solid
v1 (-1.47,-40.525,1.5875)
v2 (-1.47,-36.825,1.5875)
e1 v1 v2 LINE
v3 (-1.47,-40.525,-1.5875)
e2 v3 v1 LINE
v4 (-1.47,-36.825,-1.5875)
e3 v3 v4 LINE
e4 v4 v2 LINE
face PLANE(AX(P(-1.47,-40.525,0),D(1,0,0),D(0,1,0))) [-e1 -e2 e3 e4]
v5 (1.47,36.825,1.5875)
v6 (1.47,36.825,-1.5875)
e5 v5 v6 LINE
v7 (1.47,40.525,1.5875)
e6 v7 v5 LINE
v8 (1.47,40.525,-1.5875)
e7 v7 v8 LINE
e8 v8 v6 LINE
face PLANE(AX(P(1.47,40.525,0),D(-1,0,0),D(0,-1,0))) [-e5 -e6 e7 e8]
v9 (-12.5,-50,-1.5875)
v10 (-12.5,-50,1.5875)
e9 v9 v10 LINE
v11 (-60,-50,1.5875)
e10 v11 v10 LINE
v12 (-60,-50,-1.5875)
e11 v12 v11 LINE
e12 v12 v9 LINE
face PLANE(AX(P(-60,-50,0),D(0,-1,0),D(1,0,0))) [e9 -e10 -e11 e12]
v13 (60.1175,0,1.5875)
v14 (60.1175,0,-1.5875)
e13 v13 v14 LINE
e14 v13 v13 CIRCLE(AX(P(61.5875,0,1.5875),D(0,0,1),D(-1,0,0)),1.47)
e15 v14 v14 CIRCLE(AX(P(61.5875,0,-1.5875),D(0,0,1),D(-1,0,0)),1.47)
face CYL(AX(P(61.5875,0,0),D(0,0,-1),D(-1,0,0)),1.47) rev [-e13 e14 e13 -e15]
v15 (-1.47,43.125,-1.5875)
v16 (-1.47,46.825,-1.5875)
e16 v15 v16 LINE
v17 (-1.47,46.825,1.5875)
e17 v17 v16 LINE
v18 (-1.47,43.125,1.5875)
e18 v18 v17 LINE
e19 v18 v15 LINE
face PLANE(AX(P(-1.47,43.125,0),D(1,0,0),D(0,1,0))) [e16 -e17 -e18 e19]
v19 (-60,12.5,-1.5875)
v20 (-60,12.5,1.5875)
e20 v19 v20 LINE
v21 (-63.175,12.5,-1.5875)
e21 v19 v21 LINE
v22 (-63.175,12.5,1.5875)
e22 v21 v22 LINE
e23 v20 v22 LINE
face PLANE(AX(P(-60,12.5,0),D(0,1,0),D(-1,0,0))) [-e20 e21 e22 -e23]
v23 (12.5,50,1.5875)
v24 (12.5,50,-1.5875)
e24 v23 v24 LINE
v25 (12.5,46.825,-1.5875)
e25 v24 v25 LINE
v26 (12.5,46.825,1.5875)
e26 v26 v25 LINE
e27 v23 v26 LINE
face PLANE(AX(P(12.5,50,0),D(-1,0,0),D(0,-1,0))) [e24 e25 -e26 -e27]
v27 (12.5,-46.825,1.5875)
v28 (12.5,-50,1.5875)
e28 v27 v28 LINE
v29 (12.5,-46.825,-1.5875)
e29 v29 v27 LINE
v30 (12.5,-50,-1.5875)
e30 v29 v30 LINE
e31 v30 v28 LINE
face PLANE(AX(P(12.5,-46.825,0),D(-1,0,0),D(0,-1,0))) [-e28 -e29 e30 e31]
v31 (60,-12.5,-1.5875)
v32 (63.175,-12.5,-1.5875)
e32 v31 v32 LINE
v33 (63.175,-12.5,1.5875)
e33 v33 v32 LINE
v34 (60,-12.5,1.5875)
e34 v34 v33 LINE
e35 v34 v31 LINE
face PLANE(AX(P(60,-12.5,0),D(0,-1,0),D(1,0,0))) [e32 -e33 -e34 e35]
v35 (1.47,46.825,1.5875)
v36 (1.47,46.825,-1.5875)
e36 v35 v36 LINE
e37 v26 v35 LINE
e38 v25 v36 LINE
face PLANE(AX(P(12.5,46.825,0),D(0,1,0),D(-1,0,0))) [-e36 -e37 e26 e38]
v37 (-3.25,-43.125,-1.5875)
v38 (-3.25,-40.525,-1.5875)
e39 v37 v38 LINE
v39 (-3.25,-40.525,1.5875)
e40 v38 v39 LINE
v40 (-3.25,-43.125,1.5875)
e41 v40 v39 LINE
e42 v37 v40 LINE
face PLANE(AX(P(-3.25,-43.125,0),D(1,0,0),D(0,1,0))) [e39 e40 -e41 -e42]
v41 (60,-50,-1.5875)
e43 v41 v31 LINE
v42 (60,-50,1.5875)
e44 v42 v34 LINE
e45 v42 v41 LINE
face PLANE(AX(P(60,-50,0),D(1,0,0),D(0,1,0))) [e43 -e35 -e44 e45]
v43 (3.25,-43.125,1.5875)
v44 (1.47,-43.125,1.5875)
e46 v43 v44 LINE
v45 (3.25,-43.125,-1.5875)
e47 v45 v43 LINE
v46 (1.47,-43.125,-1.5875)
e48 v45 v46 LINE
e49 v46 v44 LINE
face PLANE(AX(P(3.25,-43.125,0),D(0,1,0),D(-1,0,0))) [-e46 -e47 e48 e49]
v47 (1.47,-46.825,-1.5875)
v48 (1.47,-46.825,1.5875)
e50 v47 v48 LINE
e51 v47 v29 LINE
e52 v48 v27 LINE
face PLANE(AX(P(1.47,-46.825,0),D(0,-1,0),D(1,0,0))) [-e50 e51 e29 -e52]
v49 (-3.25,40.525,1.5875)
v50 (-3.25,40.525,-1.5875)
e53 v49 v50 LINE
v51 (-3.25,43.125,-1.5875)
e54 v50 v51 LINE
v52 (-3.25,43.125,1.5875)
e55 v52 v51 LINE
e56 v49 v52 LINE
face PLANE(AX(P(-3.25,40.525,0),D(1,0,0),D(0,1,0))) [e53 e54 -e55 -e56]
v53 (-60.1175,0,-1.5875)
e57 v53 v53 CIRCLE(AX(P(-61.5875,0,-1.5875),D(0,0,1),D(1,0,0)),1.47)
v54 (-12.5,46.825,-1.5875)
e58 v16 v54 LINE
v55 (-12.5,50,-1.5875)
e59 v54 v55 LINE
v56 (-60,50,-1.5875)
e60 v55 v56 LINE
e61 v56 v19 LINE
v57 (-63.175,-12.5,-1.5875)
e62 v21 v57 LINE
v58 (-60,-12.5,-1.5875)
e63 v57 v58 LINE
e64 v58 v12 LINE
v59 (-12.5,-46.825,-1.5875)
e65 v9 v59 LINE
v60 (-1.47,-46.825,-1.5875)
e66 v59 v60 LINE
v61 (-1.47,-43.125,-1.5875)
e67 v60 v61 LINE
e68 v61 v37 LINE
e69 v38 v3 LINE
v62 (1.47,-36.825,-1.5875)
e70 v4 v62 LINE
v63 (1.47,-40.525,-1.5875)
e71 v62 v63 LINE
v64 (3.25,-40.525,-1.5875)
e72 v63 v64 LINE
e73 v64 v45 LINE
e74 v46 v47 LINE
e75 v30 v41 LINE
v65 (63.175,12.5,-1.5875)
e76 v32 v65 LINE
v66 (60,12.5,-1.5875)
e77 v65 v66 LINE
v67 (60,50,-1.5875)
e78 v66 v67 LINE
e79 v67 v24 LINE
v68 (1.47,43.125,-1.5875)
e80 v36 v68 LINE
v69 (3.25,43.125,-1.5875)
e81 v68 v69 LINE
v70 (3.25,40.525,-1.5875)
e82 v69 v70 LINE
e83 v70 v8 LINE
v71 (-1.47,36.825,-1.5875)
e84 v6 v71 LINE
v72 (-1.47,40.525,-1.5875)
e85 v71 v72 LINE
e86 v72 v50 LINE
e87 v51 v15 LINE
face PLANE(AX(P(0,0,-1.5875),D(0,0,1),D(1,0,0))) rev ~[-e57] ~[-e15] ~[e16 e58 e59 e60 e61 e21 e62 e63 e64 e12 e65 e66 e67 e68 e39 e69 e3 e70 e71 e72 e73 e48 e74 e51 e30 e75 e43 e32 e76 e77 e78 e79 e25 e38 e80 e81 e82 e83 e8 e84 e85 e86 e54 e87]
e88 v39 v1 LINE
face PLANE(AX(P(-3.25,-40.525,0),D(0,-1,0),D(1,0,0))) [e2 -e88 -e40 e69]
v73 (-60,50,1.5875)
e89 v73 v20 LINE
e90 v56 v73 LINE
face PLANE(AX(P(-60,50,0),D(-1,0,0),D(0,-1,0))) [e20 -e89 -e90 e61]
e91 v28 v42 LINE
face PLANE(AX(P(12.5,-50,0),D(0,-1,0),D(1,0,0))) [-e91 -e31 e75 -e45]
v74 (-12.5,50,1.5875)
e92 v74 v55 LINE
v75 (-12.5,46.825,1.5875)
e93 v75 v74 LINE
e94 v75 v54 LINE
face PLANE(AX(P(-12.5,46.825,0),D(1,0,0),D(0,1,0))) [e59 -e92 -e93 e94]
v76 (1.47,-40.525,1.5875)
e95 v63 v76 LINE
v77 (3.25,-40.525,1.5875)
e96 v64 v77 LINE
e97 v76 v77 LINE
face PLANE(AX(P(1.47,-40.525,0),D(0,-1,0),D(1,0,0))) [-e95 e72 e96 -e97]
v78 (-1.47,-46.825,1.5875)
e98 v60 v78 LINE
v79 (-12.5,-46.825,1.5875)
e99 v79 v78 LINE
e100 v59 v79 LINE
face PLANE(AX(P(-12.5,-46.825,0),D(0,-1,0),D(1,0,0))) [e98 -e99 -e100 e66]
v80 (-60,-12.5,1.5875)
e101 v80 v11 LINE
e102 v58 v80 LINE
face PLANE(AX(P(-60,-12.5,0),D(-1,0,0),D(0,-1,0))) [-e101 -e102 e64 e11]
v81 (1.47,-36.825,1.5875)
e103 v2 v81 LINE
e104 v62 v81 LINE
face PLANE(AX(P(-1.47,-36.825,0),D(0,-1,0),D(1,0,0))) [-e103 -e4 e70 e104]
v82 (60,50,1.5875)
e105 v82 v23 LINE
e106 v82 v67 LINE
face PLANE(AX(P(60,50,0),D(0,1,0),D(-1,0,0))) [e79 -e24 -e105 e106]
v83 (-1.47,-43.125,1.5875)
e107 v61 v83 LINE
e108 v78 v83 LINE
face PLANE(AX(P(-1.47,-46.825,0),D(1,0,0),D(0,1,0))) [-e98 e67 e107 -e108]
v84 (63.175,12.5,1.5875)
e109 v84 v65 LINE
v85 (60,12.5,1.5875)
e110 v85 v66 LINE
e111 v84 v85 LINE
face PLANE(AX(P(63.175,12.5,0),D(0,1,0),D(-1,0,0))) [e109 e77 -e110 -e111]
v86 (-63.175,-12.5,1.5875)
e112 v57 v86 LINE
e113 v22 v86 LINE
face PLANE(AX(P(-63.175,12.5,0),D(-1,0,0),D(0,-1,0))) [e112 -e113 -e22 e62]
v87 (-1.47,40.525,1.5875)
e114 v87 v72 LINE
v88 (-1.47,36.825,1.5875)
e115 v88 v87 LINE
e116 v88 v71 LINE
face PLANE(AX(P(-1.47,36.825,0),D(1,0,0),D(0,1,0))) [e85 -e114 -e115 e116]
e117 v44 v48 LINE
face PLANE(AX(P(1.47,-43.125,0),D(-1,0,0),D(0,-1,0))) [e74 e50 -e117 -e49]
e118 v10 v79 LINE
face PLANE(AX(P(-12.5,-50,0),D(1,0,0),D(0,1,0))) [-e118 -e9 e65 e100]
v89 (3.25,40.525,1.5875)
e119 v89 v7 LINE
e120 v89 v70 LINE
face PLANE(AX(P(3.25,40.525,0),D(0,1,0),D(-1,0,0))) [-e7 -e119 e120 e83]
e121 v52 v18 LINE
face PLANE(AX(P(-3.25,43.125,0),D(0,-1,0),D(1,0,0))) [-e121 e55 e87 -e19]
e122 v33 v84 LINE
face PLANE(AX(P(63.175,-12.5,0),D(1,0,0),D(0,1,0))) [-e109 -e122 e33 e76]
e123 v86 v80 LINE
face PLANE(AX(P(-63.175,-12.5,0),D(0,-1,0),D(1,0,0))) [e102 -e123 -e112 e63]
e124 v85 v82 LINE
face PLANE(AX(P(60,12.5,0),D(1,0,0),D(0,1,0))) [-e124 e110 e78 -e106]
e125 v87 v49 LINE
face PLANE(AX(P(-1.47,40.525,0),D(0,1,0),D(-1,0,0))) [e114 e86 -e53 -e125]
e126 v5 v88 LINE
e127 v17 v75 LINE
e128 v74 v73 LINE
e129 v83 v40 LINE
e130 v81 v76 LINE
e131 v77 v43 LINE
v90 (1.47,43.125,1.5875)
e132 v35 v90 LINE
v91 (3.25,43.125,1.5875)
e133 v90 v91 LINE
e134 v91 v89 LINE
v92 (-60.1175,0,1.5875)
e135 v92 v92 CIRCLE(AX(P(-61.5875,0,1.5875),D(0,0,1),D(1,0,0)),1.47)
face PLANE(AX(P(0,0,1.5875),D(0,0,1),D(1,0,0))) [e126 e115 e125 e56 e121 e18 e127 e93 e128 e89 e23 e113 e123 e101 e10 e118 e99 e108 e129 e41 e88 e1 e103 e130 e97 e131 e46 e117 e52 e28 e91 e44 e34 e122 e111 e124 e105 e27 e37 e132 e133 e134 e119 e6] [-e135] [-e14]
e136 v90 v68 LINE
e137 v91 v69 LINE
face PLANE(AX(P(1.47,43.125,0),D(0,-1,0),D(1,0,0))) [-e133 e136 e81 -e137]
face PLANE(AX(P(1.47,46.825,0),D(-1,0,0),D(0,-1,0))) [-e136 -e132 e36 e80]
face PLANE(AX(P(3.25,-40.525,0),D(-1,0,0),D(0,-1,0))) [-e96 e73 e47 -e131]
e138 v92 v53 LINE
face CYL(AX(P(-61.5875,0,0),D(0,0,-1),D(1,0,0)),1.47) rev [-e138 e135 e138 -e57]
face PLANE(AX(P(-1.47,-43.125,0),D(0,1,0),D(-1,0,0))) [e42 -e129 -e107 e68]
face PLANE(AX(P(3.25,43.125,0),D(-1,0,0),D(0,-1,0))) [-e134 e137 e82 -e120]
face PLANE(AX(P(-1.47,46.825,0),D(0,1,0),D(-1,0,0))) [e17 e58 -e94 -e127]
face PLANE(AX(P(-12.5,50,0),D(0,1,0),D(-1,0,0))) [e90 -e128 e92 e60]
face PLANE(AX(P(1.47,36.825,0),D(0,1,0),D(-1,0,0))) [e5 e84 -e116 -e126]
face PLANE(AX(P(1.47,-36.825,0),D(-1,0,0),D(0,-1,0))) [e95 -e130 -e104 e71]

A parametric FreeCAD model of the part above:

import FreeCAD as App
import Part
import Sketcher
Q = App.Units.Quantity

doc = App.newDocument("Part")
params = doc.addObject("Spreadsheet::Sheet", "Params")
for row, (alias, value) in enumerate([
    ("sketch1_diameter", "2.94 mm"),
    ("sketch1_height", "25 mm"),
    ("sketch1_width", "47.5 mm"),
    ("sketch1_height2", "37.5 mm"),
    ("sketch1_height3", "3.7 mm"),
    ("pad1_length", "3.175 mm"),
], start=1):
    params.set(f"A{row}", alias)
    params.set(f"B{row}", "=" + value)
    params.setAlias(f"B{row}", alias)

body = doc.addObject("PartDesign::Body", "Body")

sketch1 = body.newObject("Sketcher::SketchObject", "Sketch")
sketch1.AttachmentSupport = (doc.getObject("XY_Plane"), [""])
sketch1.MapMode = "FlatFace"
sketch1.addGeometry(Part.LineSegment(App.Vector(-12.5, 50, 0), App.Vector(-60, 50, 0)), False)
sketch1.addGeometry(Part.LineSegment(App.Vector(-60, 50, 0), App.Vector(-60, 12.5, 0)), False)
sketch1.addGeometry(Part.LineSegment(App.Vector(-60, 12.5, 0), App.Vector(-63.2, 12.5, 0)), False)
sketch1.addGeometry(Part.LineSegment(App.Vector(-63.2, 12.5, 0), App.Vector(-63.2, -12.5, 0)), False)
sketch1.addGeometry(Part.LineSegment(App.Vector(-63.2, -12.5, 0), App.Vector(-60, -12.5, 0)), False)
sketch1.addGeometry(Part.LineSegment(App.Vector(-60, -12.5, 0), App.Vector(-60, -50, 0)), False)
sketch1.addGeometry(Part.LineSegment(App.Vector(-60, -50, 0), App.Vector(-12.5, -50, 0)), False)
sketch1.addGeometry(Part.LineSegment(App.Vector(-12.5, -50, 0), App.Vector(-12.5, -46.8, 0)), False)
sketch1.addGeometry(Part.LineSegment(App.Vector(-12.5, -46.8, 0), App.Vector(-1.5, -46.8, 0)), False)
sketch1.addGeometry(Part.LineSegment(App.Vector(-1.5, -46.8, 0), App.Vector(-1.5, -43.1, 0)), False)
sketch1.addGeometry(Part.LineSegment(App.Vector(-1.5, -43.1, 0), App.Vector(-3.2, -43.1, 0)), False)
sketch1.addGeometry(Part.LineSegment(App.Vector(-3.2, -43.1, 0), App.Vector(-3.2, -40.5, 0)), False)
sketch1.addGeometry(Part.LineSegment(App.Vector(-3.2, -40.5, 0), App.Vector(-1.5, -40.5, 0)), False)
sketch1.addGeometry(Part.LineSegment(App.Vector(-1.5, -40.5, 0), App.Vector(-1.5, -36.8, 0)), False)
sketch1.addGeometry(Part.LineSegment(App.Vector(-1.5, -36.8, 0), App.Vector(1.5, -36.8, 0)), False)
sketch1.addGeometry(Part.LineSegment(App.Vector(1.5, -36.8, 0), App.Vector(1.5, -40.5, 0)), False)
sketch1.addGeometry(Part.LineSegment(App.Vector(1.5, -40.5, 0), App.Vector(3.2, -40.5, 0)), False)
sketch1.addGeometry(Part.LineSegment(App.Vector(3.2, -40.5, 0), App.Vector(3.2, -43.1, 0)), False)
sketch1.addGeometry(Part.LineSegment(App.Vector(3.2, -43.1, 0), App.Vector(1.5, -43.1, 0)), False)
sketch1.addGeometry(Part.LineSegment(App.Vector(1.5, -43.1, 0), App.Vector(1.5, -46.8, 0)), False)
sketch1.addGeometry(Part.LineSegment(App.Vector(1.5, -46.8, 0), App.Vector(12.5, -46.8, 0)), False)
sketch1.addGeometry(Part.LineSegment(App.Vector(12.5, -46.8, 0), App.Vector(12.5, -50, 0)), False)
sketch1.addGeometry(Part.LineSegment(App.Vector(12.5, -50, 0), App.Vector(60, -50, 0)), False)
sketch1.addGeometry(Part.LineSegment(App.Vector(60, -50, 0), App.Vector(60, -12.5, 0)), False)
sketch1.addGeometry(Part.LineSegment(App.Vector(60, -12.5, 0), App.Vector(63.2, -12.5, 0)), False)
sketch1.addGeometry(Part.LineSegment(App.Vector(63.2, -12.5, 0), App.Vector(63.2, 12.5, 0)), False)
sketch1.addGeometry(Part.LineSegment(App.Vector(63.2, 12.5, 0), App.Vector(60, 12.5, 0)), False)
sketch1.addGeometry(Part.LineSegment(App.Vector(60, 12.5, 0), App.Vector(60, 50, 0)), False)
sketch1.addGeometry(Part.LineSegment(App.Vector(60, 50, 0), App.Vector(12.5, 50, 0)), False)
sketch1.addGeometry(Part.LineSegment(App.Vector(12.5, 50, 0), App.Vector(12.5, 46.8, 0)), False)
sketch1.addGeometry(Part.LineSegment(App.Vector(12.5, 46.8, 0), App.Vector(1.5, 46.8, 0)), False)
sketch1.addGeometry(Part.LineSegment(App.Vector(1.5, 46.8, 0), App.Vector(1.5, 43.1, 0)), False)
sketch1.addGeometry(Part.LineSegment(App.Vector(1.5, 43.1, 0), App.Vector(3.2, 43.1, 0)), False)
sketch1.addGeometry(Part.LineSegment(App.Vector(3.2, 43.1, 0), App.Vector(3.2, 40.5, 0)), False)
sketch1.addGeometry(Part.LineSegment(App.Vector(3.2, 40.5, 0), App.Vector(1.5, 40.5, 0)), False)
sketch1.addGeometry(Part.LineSegment(App.Vector(1.5, 40.5, 0), App.Vector(1.5, 36.8, 0)), False)
sketch1.addGeometry(Part.LineSegment(App.Vector(1.5, 36.8, 0), App.Vector(-1.5, 36.8, 0)), False)
sketch1.addGeometry(Part.LineSegment(App.Vector(-1.5, 36.8, 0), App.Vector(-1.5, 40.5, 0)), False)
sketch1.addGeometry(Part.LineSegment(App.Vector(-1.5, 40.5, 0), App.Vector(-3.2, 40.5, 0)), False)
sketch1.addGeometry(Part.LineSegment(App.Vector(-3.2, 40.5, 0), App.Vector(-3.2, 43.1, 0)), False)
sketch1.addGeometry(Part.LineSegment(App.Vector(-3.2, 43.1, 0), App.Vector(-1.5, 43.1, 0)), False)
sketch1.addGeometry(Part.LineSegment(App.Vector(-1.5, 43.1, 0), App.Vector(-1.5, 46.8, 0)), False)
sketch1.addGeometry(Part.LineSegment(App.Vector(-1.5, 46.8, 0), App.Vector(-12.5, 46.8, 0)), False)
sketch1.addGeometry(Part.LineSegment(App.Vector(-12.5, 46.8, 0), App.Vector(-12.5, 50, 0)), False)
sketch1.addGeometry(Part.Circle(App.Vector(-61.6, 0, 0), App.Vector(0, 0, 1), 1.5), False)
sketch1.addGeometry(Part.Circle(App.Vector(61.6, 0, 0), App.Vector(0, 0, 1), 1.5), False)
sketch1.addConstraint(Sketcher.Constraint("Coincident", 0, 2, 1, 1))
sketch1.addConstraint(Sketcher.Constraint("Coincident", 1, 2, 2, 1))
sketch1.addConstraint(Sketcher.Constraint("Coincident", 2, 2, 3, 1))
sketch1.addConstraint(Sketcher.Constraint("Coincident", 3, 2, 4, 1))
sketch1.addConstraint(Sketcher.Constraint("Coincident", 4, 2, 5, 1))
sketch1.addConstraint(Sketcher.Constraint("Coincident", 5, 2, 6, 1))
sketch1.addConstraint(Sketcher.Constraint("Coincident", 6, 2, 7, 1))
sketch1.addConstraint(Sketcher.Constraint("Coincident", 7, 2, 8, 1))
sketch1.addConstraint(Sketcher.Constraint("Coincident", 8, 2, 9, 1))
sketch1.addConstraint(Sketcher.Constraint("Coincident", 9, 2, 10, 1))
sketch1.addConstraint(Sketcher.Constraint("Coincident", 10, 2, 11, 1))
sketch1.addConstraint(Sketcher.Constraint("Coincident", 11, 2, 12, 1))
sketch1.addConstraint(Sketcher.Constraint("Coincident", 12, 2, 13, 1))
sketch1.addConstraint(Sketcher.Constraint("Coincident", 13, 2, 14, 1))
sketch1.addConstraint(Sketcher.Constraint("Coincident", 14, 2, 15, 1))
sketch1.addConstraint(Sketcher.Constraint("Coincident", 15, 2, 16, 1))
sketch1.addConstraint(Sketcher.Constraint("Coincident", 16, 2, 17, 1))
sketch1.addConstraint(Sketcher.Constraint("Coincident", 17, 2, 18, 1))
sketch1.addConstraint(Sketcher.Constraint("Coincident", 18, 2, 19, 1))
sketch1.addConstraint(Sketcher.Constraint("Coincident", 19, 2, 20, 1))
sketch1.addConstraint(Sketcher.Constraint("Coincident", 20, 2, 21, 1))
sketch1.addConstraint(Sketcher.Constraint("Coincident", 21, 2, 22, 1))
sketch1.addConstraint(Sketcher.Constraint("Coincident", 22, 2, 23, 1))
sketch1.addConstraint(Sketcher.Constraint("Coincident", 23, 2, 24, 1))
sketch1.addConstraint(Sketcher.Constraint("Coincident", 24, 2, 25, 1))
sketch1.addConstraint(Sketcher.Constraint("Coincident", 25, 2, 26, 1))
sketch1.addConstraint(Sketcher.Constraint("Coincident", 26, 2, 27, 1))
sketch1.addConstraint(Sketcher.Constraint("Coincident", 27, 2, 28, 1))
sketch1.addConstraint(Sketcher.Constraint("Coincident", 28, 2, 29, 1))
sketch1.addConstraint(Sketcher.Constraint("Coincident", 29, 2, 30, 1))
sketch1.addConstraint(Sketcher.Constraint("Coincident", 30, 2, 31, 1))
sketch1.addConstraint(Sketcher.Constraint("Coincident", 31, 2, 32, 1))
sketch1.addConstraint(Sketcher.Constraint("Coincident", 32, 2, 33, 1))
sketch1.addConstraint(Sketcher.Constraint("Coincident", 33, 2, 34, 1))
sketch1.addConstraint(Sketcher.Constraint("Coincident", 34, 2, 35, 1))
sketch1.addConstraint(Sketcher.Constraint("Coincident", 35, 2, 36, 1))
sketch1.addConstraint(Sketcher.Constraint("Coincident", 36, 2, 37, 1))
sketch1.addConstraint(Sketcher.Constraint("Coincident", 37, 2, 38, 1))
sketch1.addConstraint(Sketcher.Constraint("Coincident", 38, 2, 39, 1))
sketch1.addConstraint(Sketcher.Constraint("Coincident", 39, 2, 40, 1))
sketch1.addConstraint(Sketcher.Constraint("Coincident", 40, 2, 41, 1))
sketch1.addConstraint(Sketcher.Constraint("Coincident", 41, 2, 42, 1))
sketch1.addConstraint(Sketcher.Constraint("Coincident", 42, 2, 43, 1))
sketch1.addConstraint(Sketcher.Constraint("Coincident", 43, 2, 0, 1))
sketch1.addConstraint(Sketcher.Constraint("Horizontal", 0))
sketch1.addConstraint(Sketcher.Constraint("Vertical", 1))
sketch1.addConstraint(Sketcher.Constraint("Horizontal", 2))
sketch1.addConstraint(Sketcher.Constraint("Vertical", 3))
sketch1.addConstraint(Sketcher.Constraint("Horizontal", 4))
sketch1.addConstraint(Sketcher.Constraint("Vertical", 5))
sketch1.addConstraint(Sketcher.Constraint("Horizontal", 6))
sketch1.addConstraint(Sketcher.Constraint("Vertical", 7))
sketch1.addConstraint(Sketcher.Constraint("Horizontal", 8))
sketch1.addConstraint(Sketcher.Constraint("Vertical", 9))
sketch1.addConstraint(Sketcher.Constraint("Horizontal", 10))
sketch1.addConstraint(Sketcher.Constraint("Vertical", 11))
sketch1.addConstraint(Sketcher.Constraint("Horizontal", 12))
sketch1.addConstraint(Sketcher.Constraint("Vertical", 13))
sketch1.addConstraint(Sketcher.Constraint("Horizontal", 14))
sketch1.addConstraint(Sketcher.Constraint("Vertical", 15))
sketch1.addConstraint(Sketcher.Constraint("Horizontal", 16))
sketch1.addConstraint(Sketcher.Constraint("Vertical", 17))
sketch1.addConstraint(Sketcher.Constraint("Horizontal", 18))
sketch1.addConstraint(Sketcher.Constraint("Vertical", 19))
sketch1.addConstraint(Sketcher.Constraint("Horizontal", 20))
sketch1.addConstraint(Sketcher.Constraint("Vertical", 21))
sketch1.addConstraint(Sketcher.Constraint("Horizontal", 22))
sketch1.addConstraint(Sketcher.Constraint("Vertical", 23))
sketch1.addConstraint(Sketcher.Constraint("Horizontal", 24))
sketch1.addConstraint(Sketcher.Constraint("Vertical", 25))
sketch1.addConstraint(Sketcher.Constraint("Horizontal", 26))
sketch1.addConstraint(Sketcher.Constraint("Vertical", 27))
sketch1.addConstraint(Sketcher.Constraint("Horizontal", 28))
sketch1.addConstraint(Sketcher.Constraint("Vertical", 29))
sketch1.addConstraint(Sketcher.Constraint("Horizontal", 30))
sketch1.addConstraint(Sketcher.Constraint("Vertical", 31))
sketch1.addConstraint(Sketcher.Constraint("Horizontal", 32))
sketch1.addConstraint(Sketcher.Constraint("Vertical", 33))
sketch1.addConstraint(Sketcher.Constraint("Horizontal", 34))
sketch1.addConstraint(Sketcher.Constraint("Vertical", 35))
sketch1.addConstraint(Sketcher.Constraint("Horizontal", 36))
sketch1.addConstraint(Sketcher.Constraint("Vertical", 37))
sketch1.addConstraint(Sketcher.Constraint("Horizontal", 38))
sketch1.addConstraint(Sketcher.Constraint("Vertical", 39))
sketch1.addConstraint(Sketcher.Constraint("Horizontal", 40))
sketch1.addConstraint(Sketcher.Constraint("Vertical", 41))
sketch1.addConstraint(Sketcher.Constraint("Horizontal", 42))
sketch1.addConstraint(Sketcher.Constraint("Vertical", 43))
sketch1.addConstraint(Sketcher.Constraint("Equal", 44, 45))
sketch1.addConstraint(Sketcher.Constraint("Symmetric", 44, 3, 45, 3, -1, 1))
sketch1.addConstraint(Sketcher.Constraint("Symmetric", 0, 2, 22, 2, -1, 1))
sketch1.addConstraint(Sketcher.Constraint("Symmetric", 2, 2, 24, 2, -1, 1))
sketch1.addConstraint(Sketcher.Constraint("Symmetric", 4, 2, 26, 2, -1, 1))
sketch1.addConstraint(Sketcher.Constraint("Symmetric", 6, 2, 28, 2, -1, 1))
sketch1.addConstraint(Sketcher.Constraint("Symmetric", 8, 2, 30, 2, -1, 1))
sketch1.addConstraint(Sketcher.Constraint("Symmetric", 10, 2, 32, 2, -1, 1))
sketch1.addConstraint(Sketcher.Constraint("Symmetric", 12, 2, 34, 2, -1, 1))
sketch1.addConstraint(Sketcher.Constraint("Symmetric", 14, 2, 36, 2, -1, 1))
sketch1.addConstraint(Sketcher.Constraint("Symmetric", 16, 2, 38, 2, -1, 1))
sketch1.addConstraint(Sketcher.Constraint("Symmetric", 18, 2, 40, 2, -1, 1))
sketch1.addConstraint(Sketcher.Constraint("Symmetric", 20, 2, 42, 2, -1, 1))
sketch1.addConstraint(Sketcher.Constraint("Symmetric", 12, 2, 15, 2, -2))
sketch1.addConstraint(Sketcher.Constraint("Symmetric", 10, 2, 17, 2, -2))
sketch1.addConstraint(Sketcher.Constraint("Symmetric", 8, 2, 19, 2, -2))
sketch1.addConstraint(Sketcher.Constraint("Symmetric", 6, 2, 21, 2, -2))
sketch1.addConstraint(Sketcher.Constraint("Symmetric", 4, 2, 23, 2, -2))
sketch1.addConstraint(Sketcher.Constraint("PointOnObject", 44, 3, -1))
sketch1.addConstraint(Sketcher.Constraint("Vertical", 9, 2, 12, 2))
sketch1.addConstraint(Sketcher.Constraint("Equal", 26, 7))
sketch1.addConstraint(Sketcher.Constraint("Equal", 9, 13))
sketch1.addConstraint(Sketcher.Constraint("Diameter", 44, Q("2.94 mm")))
sketch1.addConstraint(Sketcher.Constraint("DistanceY", 3, 2, 3, 1, Q("25 mm")))
sketch1.addConstraint(Sketcher.Constraint("DistanceX", 0, 2, 0, 1, Q("47.5 mm")))
sketch1.addConstraint(Sketcher.Constraint("DistanceY", 1, 2, 1, 1, Q("37.5 mm")))
sketch1.addConstraint(Sketcher.Constraint("DistanceY", 9, 1, 9, 2, Q("3.7 mm")))
sketch1.addConstraint(Sketcher.Constraint("DistanceY", 11, 1, 11, 2, Q("2.6 mm")))
sketch1.addConstraint(Sketcher.Constraint("DistanceX", 0, 2, -1, 1, Q("60 mm")))
sketch1.addConstraint(Sketcher.Constraint("DistanceX", 8, 1, 8, 2, Q("11.03 mm")))
sketch1.addConstraint(Sketcher.Constraint("DistanceX", 10, 2, 10, 1, Q("1.78 mm")))
sketch1.addConstraint(Sketcher.Constraint("DistanceX", 2, 2, 2, 1, Q("3.175 mm")))
sketch1.addConstraint(Sketcher.Constraint("DistanceX", 44, 3, 45, 3, Q("123.175 mm")))
sketch1.setExpression("Constraints[110]", "Params.sketch1_diameter")
sketch1.setExpression("Constraints[111]", "Params.sketch1_height")
sketch1.setExpression("Constraints[112]", "Params.sketch1_width")
sketch1.setExpression("Constraints[113]", "Params.sketch1_height2")
sketch1.setExpression("Constraints[114]", "Params.sketch1_height3")
pad1 = body.newObject("PartDesign::Pad", "Pad")
pad1.Profile = sketch1
pad1.setExpression("Length", "Params.pad1_length")
pad1.Midplane = True

doc.recompute()
